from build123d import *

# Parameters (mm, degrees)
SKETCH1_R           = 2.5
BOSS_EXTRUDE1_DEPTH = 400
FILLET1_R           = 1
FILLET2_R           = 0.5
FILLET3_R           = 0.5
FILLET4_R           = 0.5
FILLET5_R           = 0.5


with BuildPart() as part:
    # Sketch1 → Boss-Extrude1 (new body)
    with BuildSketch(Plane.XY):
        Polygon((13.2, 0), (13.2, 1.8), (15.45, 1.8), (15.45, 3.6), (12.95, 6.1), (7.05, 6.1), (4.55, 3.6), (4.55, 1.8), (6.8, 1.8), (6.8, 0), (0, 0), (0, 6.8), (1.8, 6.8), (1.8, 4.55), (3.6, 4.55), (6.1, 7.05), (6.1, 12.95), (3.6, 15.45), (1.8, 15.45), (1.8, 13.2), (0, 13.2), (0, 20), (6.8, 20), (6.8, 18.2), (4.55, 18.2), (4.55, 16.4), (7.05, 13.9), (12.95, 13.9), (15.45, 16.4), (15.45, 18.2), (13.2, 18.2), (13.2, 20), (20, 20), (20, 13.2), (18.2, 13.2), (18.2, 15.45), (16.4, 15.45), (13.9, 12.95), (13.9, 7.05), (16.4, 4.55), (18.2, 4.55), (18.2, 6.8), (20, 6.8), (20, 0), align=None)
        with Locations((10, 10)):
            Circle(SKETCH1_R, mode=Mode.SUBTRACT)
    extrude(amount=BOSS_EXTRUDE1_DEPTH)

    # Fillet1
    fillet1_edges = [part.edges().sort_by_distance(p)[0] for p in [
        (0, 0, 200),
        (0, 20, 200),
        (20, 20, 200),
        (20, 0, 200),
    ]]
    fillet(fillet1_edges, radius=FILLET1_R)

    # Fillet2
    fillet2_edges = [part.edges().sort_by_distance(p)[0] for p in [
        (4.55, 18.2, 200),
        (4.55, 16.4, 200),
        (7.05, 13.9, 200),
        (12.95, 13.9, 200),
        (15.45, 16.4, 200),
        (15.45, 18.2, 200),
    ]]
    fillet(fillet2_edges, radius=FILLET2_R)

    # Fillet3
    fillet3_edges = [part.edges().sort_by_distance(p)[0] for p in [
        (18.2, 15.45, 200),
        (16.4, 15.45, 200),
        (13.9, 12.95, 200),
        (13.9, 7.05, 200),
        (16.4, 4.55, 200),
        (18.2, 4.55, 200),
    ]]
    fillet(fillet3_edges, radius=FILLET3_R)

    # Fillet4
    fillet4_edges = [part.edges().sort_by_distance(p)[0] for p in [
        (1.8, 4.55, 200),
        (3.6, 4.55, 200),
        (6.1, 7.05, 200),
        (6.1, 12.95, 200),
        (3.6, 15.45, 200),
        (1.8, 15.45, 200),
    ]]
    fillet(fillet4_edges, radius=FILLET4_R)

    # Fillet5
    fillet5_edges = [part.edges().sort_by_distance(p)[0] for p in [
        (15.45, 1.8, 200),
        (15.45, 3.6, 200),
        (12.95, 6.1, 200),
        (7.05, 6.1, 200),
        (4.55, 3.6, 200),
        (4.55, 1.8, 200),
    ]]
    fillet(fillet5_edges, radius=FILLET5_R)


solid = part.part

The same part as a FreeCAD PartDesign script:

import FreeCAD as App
import Part
import Sketcher

V = App.Vector


def edges_at(feature, points):
    """Names of the edges that pass closest to the given points."""
    edges = feature.Shape.Edges
    near = lambda p: min(range(len(edges)), key=lambda i: edges[i].distToShape(Part.Vertex(*p))[0])
    return sorted({f"Edge{near(p) + 1}" for p in points})

doc = App.newDocument("Part")
params = doc.addObject("Spreadsheet::Sheet", "Params")
for row, (alias, value) in enumerate([
    ("sketch1_diameter", "5 mm"),
    ("sketch1_width", "6.8 mm"),
    ("sketch1_width2", "1.8 mm"),
    ("sketch1_width3", "5.9 mm"),
    ("sketch1_width4", "2.25 mm"),
    ("pad1_length", "400 mm"),
    ("fillet_radius", "1 mm"),
    ("fillet2_radius", "0.5 mm"),
    ("fillet3_radius", "0.5 mm"),
    ("fillet4_radius", "0.5 mm"),
    ("fillet5_radius", "0.5 mm"),
], start=1):
    params.set(f"A{row}", alias)
    params.set(f"B{row}", "=" + value)
    params.setAlias(f"B{row}", alias)

body = doc.addObject("PartDesign::Body", "Body")

# Sketch on XY plane
sketch1 = body.newObject("Sketcher::SketchObject", "Sketch")
sketch1.AttachmentSupport = (doc.getObject("XY_Plane"), [""])
sketch1.MapMode = "FlatFace"
sketch1.addGeometry([
    Part.LineSegment(V(13.2, 1.8, 0), V(13.2, 0, 0)),  # 0
    Part.LineSegment(V(13.2, 0, 0), V(20, 0, 0)),  # 1
    Part.LineSegment(V(20, 0, 0), V(20, 6.8, 0)),  # 2
    Part.LineSegment(V(20, 6.8, 0), V(18.2, 6.8, 0)),  # 3
    Part.LineSegment(V(18.2, 6.8, 0), V(18.2, 4.5, 0)),  # 4
    Part.LineSegment(V(18.2, 4.5, 0), V(16.4, 4.5, 0)),  # 5
    Part.LineSegment(V(16.4, 4.5, 0), V(13.9, 7, 0)),  # 6
    Part.LineSegment(V(13.9, 7, 0), V(13.9, 12.9, 0)),  # 7
    Part.LineSegment(V(13.9, 12.9, 0), V(16.4, 15.4, 0)),  # 8
    Part.LineSegment(V(16.4, 15.4, 0), V(18.2, 15.4, 0)),  # 9
    Part.LineSegment(V(18.2, 15.4, 0), V(18.2, 13.2, 0)),  # 10
    Part.LineSegment(V(18.2, 13.2, 0), V(20, 13.2, 0)),  # 11
    Part.LineSegment(V(20, 13.2, 0), V(20, 20, 0)),  # 12
    Part.LineSegment(V(20, 20, 0), V(13.2, 20, 0)),  # 13
    Part.LineSegment(V(13.2, 20, 0), V(13.2, 18.2, 0)),  # 14
    Part.LineSegment(V(13.2, 18.2, 0), V(15.4, 18.2, 0)),  # 15
    Part.LineSegment(V(15.4, 18.2, 0), V(15.4, 16.4, 0)),  # 16
    Part.LineSegment(V(15.4, 16.4, 0), V(12.9, 13.9, 0)),  # 17
    Part.LineSegment(V(12.9, 13.9, 0), V(7, 13.9, 0)),  # 18
    Part.LineSegment(V(7, 13.9, 0), V(4.5, 16.4, 0)),  # 19
    Part.LineSegment(V(4.5, 16.4, 0), V(4.5, 18.2, 0)),  # 20
    Part.LineSegment(V(4.5, 18.2, 0), V(6.8, 18.2, 0)),  # 21
    Part.LineSegment(V(6.8, 18.2, 0), V(6.8, 20, 0)),  # 22
    Part.LineSegment(V(6.8, 20, 0), V(0, 20, 0)),  # 23
    Part.LineSegment(V(0, 20, 0), V(0, 13.2, 0)),  # 24
    Part.LineSegment(V(0, 13.2, 0), V(1.8, 13.2, 0)),  # 25
    Part.LineSegment(V(1.8, 13.2, 0), V(1.8, 15.4, 0)),  # 26
    Part.LineSegment(V(1.8, 15.4, 0), V(3.6, 15.4, 0)),  # 27
    Part.LineSegment(V(3.6, 15.4, 0), V(6.1, 12.9, 0)),  # 28
    Part.LineSegment(V(6.1, 12.9, 0), V(6.1, 7, 0)),  # 29
    Part.LineSegment(V(6.1, 7, 0), V(3.6, 4.5, 0)),  # 30
    Part.LineSegment(V(3.6, 4.5, 0), V(1.8, 4.5, 0)),  # 31
    Part.LineSegment(V(1.8, 4.5, 0), V(1.8, 6.8, 0)),  # 32
    Part.LineSegment(V(1.8, 6.8, 0), V(0, 6.8, 0)),  # 33
    Part.LineSegment(V(0, 6.8, 0), V(0, 0, 0)),  # 34
    Part.LineSegment(V(0, 0, 0), V(6.8, 0, 0)),  # 35
    Part.LineSegment(V(6.8, 0, 0), V(6.8, 1.8, 0)),  # 36
    Part.LineSegment(V(6.8, 1.8, 0), V(4.5, 1.8, 0)),  # 37
    Part.LineSegment(V(4.5, 1.8, 0), V(4.5, 3.6, 0)),  # 38
    Part.LineSegment(V(4.5, 3.6, 0), V(7, 6.1, 0)),  # 39
    Part.LineSegment(V(7, 6.1, 0), V(12.9, 6.1, 0)),  # 40
    Part.LineSegment(V(12.9, 6.1, 0), V(15.4, 3.6, 0)),  # 41
    Part.LineSegment(V(15.4, 3.6, 0), V(15.4, 1.8, 0)),  # 42
    Part.LineSegment(V(15.4, 1.8, 0), V(13.2, 1.8, 0)),  # 43
    Part.Circle(V(10, 10, 0), V(0, 0, 1), 2.5),  # 44
], False)
sketch1.addConstraint([
    Sketcher.Constraint("Coincident", 0, 2, 1, 1),
    Sketcher.Constraint("Coincident", 1, 2, 2, 1),
    Sketcher.Constraint("Coincident", 2, 2, 3, 1),
    Sketcher.Constraint("Coincident", 3, 2, 4, 1),
    Sketcher.Constraint("Coincident", 4, 2, 5, 1),
    Sketcher.Constraint("Coincident", 5, 2, 6, 1),
    Sketcher.Constraint("Coincident", 6, 2, 7, 1),
    Sketcher.Constraint("Coincident", 7, 2, 8, 1),
    Sketcher.Constraint("Coincident", 8, 2, 9, 1),
    Sketcher.Constraint("Coincident", 9, 2, 10, 1),
    Sketcher.Constraint("Coincident", 10, 2, 11, 1),
    Sketcher.Constraint("Coincident", 11, 2, 12, 1),
    Sketcher.Constraint("Coincident", 12, 2, 13, 1),
    Sketcher.Constraint("Coincident", 13, 2, 14, 1),
    Sketcher.Constraint("Coincident", 14, 2, 15, 1),
    Sketcher.Constraint("Coincident", 15, 2, 16, 1),
    Sketcher.Constraint("Coincident", 16, 2, 17, 1),
    Sketcher.Constraint("Coincident", 17, 2, 18, 1),
    Sketcher.Constraint("Coincident", 18, 2, 19, 1),
    Sketcher.Constraint("Coincident", 19, 2, 20, 1),
    Sketcher.Constraint("Coincident", 20, 2, 21, 1),
    Sketcher.Constraint("Coincident", 21, 2, 22, 1),
    Sketcher.Constraint("Coincident", 22, 2, 23, 1),
    Sketcher.Constraint("Coincident", 23, 2, 24, 1),
    Sketcher.Constraint("Coincident", 24, 2, 25, 1),
    Sketcher.Constraint("Coincident", 25, 2, 26, 1),
    Sketcher.Constraint("Coincident", 26, 2, 27, 1),
    Sketcher.Constraint("Coincident", 27, 2, 28, 1),
    Sketcher.Constraint("Coincident", 28, 2, 29, 1),
    Sketcher.Constraint("Coincident", 29, 2, 30, 1),
    Sketcher.Constraint("Coincident", 30, 2, 31, 1),
    Sketcher.Constraint("Coincident", 31, 2, 32, 1),
    Sketcher.Constraint("Coincident", 32, 2, 33, 1),
    Sketcher.Constraint("Coincident", 33, 2, 34, 1),
    Sketcher.Constraint("Coincident", 34, 2, 35, 1),
    Sketcher.Constraint("Coincident", 35, 2, 36, 1),
    Sketcher.Constraint("Coincident", 36, 2, 37, 1),
    Sketcher.Constraint("Coincident", 37, 2, 38, 1),
    Sketcher.Constraint("Coincident", 38, 2, 39, 1),
    Sketcher.Constraint("Coincident", 39, 2, 40, 1),
    Sketcher.Constraint("Coincident", 40, 2, 41, 1),
    Sketcher.Constraint("Coincident", 41, 2, 42, 1),
    Sketcher.Constraint("Coincident", 42, 2, 43, 1),
    Sketcher.Constraint("Coincident", 43, 2, 0, 1),
    Sketcher.Constraint("Vertical", 0),
    Sketcher.Constraint("Horizontal", 1),
    Sketcher.Constraint("Vertical", 2),
    Sketcher.Constraint("Horizontal", 3),
    Sketcher.Constraint("Vertical", 4),
    Sketcher.Constraint("Horizontal", 5),
    Sketcher.Constraint("Vertical", 7),
    Sketcher.Constraint("Horizontal", 9),
    Sketcher.Constraint("Vertical", 10),
    Sketcher.Constraint("Horizontal", 11),
    Sketcher.Constraint("Vertical", 12),
    Sketcher.Constraint("Horizontal", 13),
    Sketcher.Constraint("Vertical", 14),
    Sketcher.Constraint("Horizontal", 15),
    Sketcher.Constraint("Vertical", 16),
    Sketcher.Constraint("Horizontal", 18),
    Sketcher.Constraint("Vertical", 20),
    Sketcher.Constraint("Horizontal", 21),
    Sketcher.Constraint("Vertical", 22),
    Sketcher.Constraint("Horizontal", 23),
    Sketcher.Constraint("Vertical", 24),
    Sketcher.Constraint("Horizontal", 25),
    Sketcher.Constraint("Vertical", 26),
    Sketcher.Constraint("Horizontal", 27),
    Sketcher.Constraint("Vertical", 29),
    Sketcher.Constraint("Horizontal", 31),
    Sketcher.Constraint("Vertical", 32),
    Sketcher.Constraint("Horizontal", 33),
    Sketcher.Constraint("Vertical", 34),
    Sketcher.Constraint("Horizontal", 35),
    Sketcher.Constraint("Vertical", 36),
    Sketcher.Constraint("Horizontal", 37),
    Sketcher.Constraint("Vertical", 38),
    Sketcher.Constraint("Horizontal", 40),
    Sketcher.Constraint("Vertical", 42),
    Sketcher.Constraint("Horizontal", 43),
    Sketcher.Constraint("Coincident", 34, 2, -1, 1),
    Sketcher.Constraint("PointOnObject", 0, 2, -1),
    Sketcher.Constraint("PointOnObject", 23, 2, -2),
    Sketcher.Constraint("Perpendicular", 6, 8),
    Sketcher.Constraint("Parallel", 8, 17),
    Sketcher.Constraint("Perpendicular", 17, 19),
    Sketcher.Constraint("Parallel", 19, 28),
    Sketcher.Constraint("Perpendicular", 28, 30),
    Sketcher.Constraint("Parallel", 30, 39),
    Sketcher.Constraint("Perpendicular", 39, 41),
    Sketcher.Constraint("Horizontal", 16, 2, 19, 2),
    Sketcher.Constraint("Horizontal", 15, 2, 20, 2),
    Sketcher.Constraint("Horizontal", 13, 2, 22, 2),
    Sketcher.Constraint("Horizontal", 11, 2, 24, 2),
    Sketcher.Constraint("Horizontal", 9, 2, 26, 2),
    Sketcher.Constraint("Horizontal", 7, 2, 28, 2),
    Sketcher.Constraint("Horizontal", 6, 2, 29, 2),
    Sketcher.Constraint("Horizontal", 5, 2, 30, 2),
    Sketcher.Constraint("Horizontal", 3, 2, 32, 2),
    Sketcher.Constraint("Horizontal", 38, 2, 41, 2),
    Sketcher.Constraint("Horizontal", 37, 2, 42, 2),
    Sketcher.Constraint("Vertical", 5, 2, 8, 2),
    Sketcher.Constraint("Vertical", 4, 2, 9, 2),
    Sketcher.Constraint("Vertical", 2, 2, 11, 2),
    Sketcher.Constraint("Vertical", 0, 2, 13, 2),
    Sketcher.Constraint("Vertical", 27, 2, 30, 2),
    Sketcher.Constraint("Vertical", 26, 2, 31, 2),
    Sketcher.Constraint("Vertical", 22, 2, 35, 2),
    Sketcher.Constraint("Vertical", 20, 2, 37, 2),
    Sketcher.Constraint("Vertical", 18, 2, 39, 2),
    Sketcher.Constraint("Vertical", 17, 2, 40, 2),
    Sketcher.Constraint("Equal", 3, 5),
    Sketcher.Constraint("Equal", 15, 21),
    Sketcher.Constraint("Equal", 13, 23),
    Sketcher.Constraint("Equal", 11, 25),
    Sketcher.Constraint("Equal", 25, 27),
    Sketcher.Constraint("Equal", 33, 0),
    Sketcher.Constraint("Equal", 35, 2),
    Sketcher.Constraint("Equal", 43, 4),
    Sketcher.Constraint("Equal", 40, 7),
    Sketcher.Constraint("Equal", 4, 10),
    Sketcher.Constraint("Equal", 2, 12),
    Sketcher.Constraint("Equal", 0, 14),
    Sketcher.Constraint("Equal", 14, 16),
    Sketcher.Constraint("Equal", 36, 38),
    Sketcher.Constraint("Equal", 8, 17),
    Sketcher.Constraint("Diameter", 44, 5.0),
    Sketcher.Constraint("DistanceX", 1, 1, 1, 2, 6.8),
    Sketcher.Constraint("DistanceX", 3, 2, 3, 1, 1.8),
    Sketcher.Constraint("DistanceX", 18, 2, 18, 1, 5.9),
    Sketcher.Constraint("DistanceX", -1, 1, 44, 3, 10.0),
    Sketcher.Constraint("DistanceY", -1, 1, 44, 3, 10.0),
    Sketcher.Constraint("DistanceX", -1, 1, 1, 2, 20.0),
    Sketcher.Constraint("DistanceX", 15, 1, 15, 2, 2.25),
])
sketch1.setExpression("Constraints[126]", "Params.sketch1_diameter")
sketch1.setExpression("Constraints[127]", "Params.sketch1_width")
sketch1.setExpression("Constraints[128]", "Params.sketch1_width2")
sketch1.setExpression("Constraints[129]", "Params.sketch1_width3")
sketch1.setExpression("Constraints[133]", "Params.sketch1_width4")
pad1 = body.newObject("PartDesign::Pad", "Pad")
pad1.Profile = sketch1
pad1.setExpression("Length", "Params.pad1_length")
doc.recompute()

fillet = body.newObject("PartDesign::Fillet", "Fillet")
fillet.Base = (pad1, edges_at(pad1, [
    (0, 0, 200),
    (0, 20, 200),
    (20, 20, 200),
    (20, 0, 200),
]))
fillet.setExpression("Radius", "Params.fillet_radius")
doc.recompute()

fillet2 = body.newObject("PartDesign::Fillet", "Fillet001")
fillet2.Base = (fillet, edges_at(fillet, [
    (4.55, 18.2, 200),
    (4.55, 16.4, 200),
    (7.05, 13.9, 200),
    (12.95, 13.9, 200),
    (15.45, 16.4, 200),
    (15.45, 18.2, 200),
]))
fillet2.setExpression("Radius", "Params.fillet2_radius")
doc.recompute()

fillet3 = body.newObject("PartDesign::Fillet", "Fillet002")
fillet3.Base = (fillet2, edges_at(fillet2, [
    (18.2, 15.45, 200),
    (16.4, 15.45, 200),
    (13.9, 12.95, 200),
    (13.9, 7.05, 200),
    (16.4, 4.55, 200),
    (18.2, 4.55, 200),
]))
fillet3.setExpression("Radius", "Params.fillet3_radius")
doc.recompute()

fillet4 = body.newObject("PartDesign::Fillet", "Fillet003")
fillet4.Base = (fillet3, edges_at(fillet3, [
    (1.8, 4.55, 200),
    (3.6, 4.55, 200),
    (6.1, 7.05, 200),
    (6.1, 12.95, 200),
    (3.6, 15.45, 200),
    (1.8, 15.45, 200),
]))
fillet4.setExpression("Radius", "Params.fillet4_radius")
doc.recompute()

fillet5 = body.newObject("PartDesign::Fillet", "Fillet004")
fillet5.Base = (fillet4, edges_at(fillet4, [
    (15.45, 1.8, 200),
    (15.45, 3.6, 200),
    (12.95, 6.1, 200),
    (7.05, 6.1, 200),
    (4.55, 3.6, 200),
    (4.55, 1.8, 200),
]))
fillet5.setExpression("Radius", "Params.fillet5_radius")

doc.recompute()
